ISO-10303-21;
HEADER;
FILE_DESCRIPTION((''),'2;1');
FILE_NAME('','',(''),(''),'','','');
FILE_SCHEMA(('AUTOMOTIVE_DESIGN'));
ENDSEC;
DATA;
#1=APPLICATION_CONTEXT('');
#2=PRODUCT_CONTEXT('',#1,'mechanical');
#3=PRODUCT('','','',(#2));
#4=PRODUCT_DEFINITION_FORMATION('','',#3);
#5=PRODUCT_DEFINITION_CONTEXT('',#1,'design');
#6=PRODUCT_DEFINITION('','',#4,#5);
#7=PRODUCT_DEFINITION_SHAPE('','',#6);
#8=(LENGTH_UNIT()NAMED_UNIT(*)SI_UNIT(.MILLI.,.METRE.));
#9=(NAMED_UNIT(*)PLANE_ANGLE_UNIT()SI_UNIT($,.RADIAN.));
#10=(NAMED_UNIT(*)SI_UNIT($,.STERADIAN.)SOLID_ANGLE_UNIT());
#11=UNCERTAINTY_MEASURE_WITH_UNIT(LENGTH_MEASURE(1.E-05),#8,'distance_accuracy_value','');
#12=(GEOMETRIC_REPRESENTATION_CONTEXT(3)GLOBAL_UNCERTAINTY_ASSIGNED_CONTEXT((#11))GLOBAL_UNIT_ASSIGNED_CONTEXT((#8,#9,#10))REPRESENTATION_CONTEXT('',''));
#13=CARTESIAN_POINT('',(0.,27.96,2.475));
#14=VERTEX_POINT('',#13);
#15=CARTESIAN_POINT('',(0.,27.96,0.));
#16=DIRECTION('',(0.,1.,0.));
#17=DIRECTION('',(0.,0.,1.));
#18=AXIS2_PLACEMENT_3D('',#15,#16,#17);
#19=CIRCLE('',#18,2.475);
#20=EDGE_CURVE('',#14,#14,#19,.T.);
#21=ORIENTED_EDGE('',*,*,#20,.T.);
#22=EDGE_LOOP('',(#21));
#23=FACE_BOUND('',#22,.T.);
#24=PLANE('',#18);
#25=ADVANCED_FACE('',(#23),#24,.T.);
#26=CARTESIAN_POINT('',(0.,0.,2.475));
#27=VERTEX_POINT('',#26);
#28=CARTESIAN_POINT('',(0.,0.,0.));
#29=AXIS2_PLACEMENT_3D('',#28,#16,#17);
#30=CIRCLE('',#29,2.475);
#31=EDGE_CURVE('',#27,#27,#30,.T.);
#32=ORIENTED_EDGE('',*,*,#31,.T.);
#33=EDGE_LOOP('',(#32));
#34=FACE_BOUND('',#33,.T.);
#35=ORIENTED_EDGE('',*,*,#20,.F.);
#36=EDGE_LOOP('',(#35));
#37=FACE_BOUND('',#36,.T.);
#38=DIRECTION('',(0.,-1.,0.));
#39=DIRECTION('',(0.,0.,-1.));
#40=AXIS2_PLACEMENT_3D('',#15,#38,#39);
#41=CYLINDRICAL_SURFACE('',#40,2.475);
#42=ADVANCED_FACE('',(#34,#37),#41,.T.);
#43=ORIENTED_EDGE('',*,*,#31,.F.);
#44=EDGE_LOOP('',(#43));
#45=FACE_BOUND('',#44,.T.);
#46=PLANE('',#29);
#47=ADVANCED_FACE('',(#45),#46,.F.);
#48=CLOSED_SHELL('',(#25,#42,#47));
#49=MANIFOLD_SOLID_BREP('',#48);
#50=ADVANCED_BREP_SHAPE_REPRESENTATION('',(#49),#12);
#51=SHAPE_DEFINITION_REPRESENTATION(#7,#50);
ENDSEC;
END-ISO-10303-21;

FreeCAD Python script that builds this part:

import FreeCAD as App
import Part
import Sketcher

V = App.Vector

doc = App.newDocument("Part")
body = doc.addObject("PartDesign::Body", "Body")

# Sketch on XZ plane
sketch1 = body.newObject("Sketcher::SketchObject", "Sketch")
sketch1.AttachmentSupport = (doc.getObject("XZ_Plane"), [""])
sketch1.MapMode = "FlatFace"
sketch1.addGeometry(Part.Circle(V(0, 0, 0), V(0, 0, 1), 2.475), False)
sketch1.addConstraint([
    Sketcher.Constraint("Coincident", 0, 3, -1, 1),
    Sketcher.Constraint("Diameter", 0, 4.95),
])
pad1 = body.newObject("PartDesign::Pad", "Pad")
pad1.Profile = sketch1
pad1.Length = 27.96
pad1.Reversed = True

doc.recompute()
